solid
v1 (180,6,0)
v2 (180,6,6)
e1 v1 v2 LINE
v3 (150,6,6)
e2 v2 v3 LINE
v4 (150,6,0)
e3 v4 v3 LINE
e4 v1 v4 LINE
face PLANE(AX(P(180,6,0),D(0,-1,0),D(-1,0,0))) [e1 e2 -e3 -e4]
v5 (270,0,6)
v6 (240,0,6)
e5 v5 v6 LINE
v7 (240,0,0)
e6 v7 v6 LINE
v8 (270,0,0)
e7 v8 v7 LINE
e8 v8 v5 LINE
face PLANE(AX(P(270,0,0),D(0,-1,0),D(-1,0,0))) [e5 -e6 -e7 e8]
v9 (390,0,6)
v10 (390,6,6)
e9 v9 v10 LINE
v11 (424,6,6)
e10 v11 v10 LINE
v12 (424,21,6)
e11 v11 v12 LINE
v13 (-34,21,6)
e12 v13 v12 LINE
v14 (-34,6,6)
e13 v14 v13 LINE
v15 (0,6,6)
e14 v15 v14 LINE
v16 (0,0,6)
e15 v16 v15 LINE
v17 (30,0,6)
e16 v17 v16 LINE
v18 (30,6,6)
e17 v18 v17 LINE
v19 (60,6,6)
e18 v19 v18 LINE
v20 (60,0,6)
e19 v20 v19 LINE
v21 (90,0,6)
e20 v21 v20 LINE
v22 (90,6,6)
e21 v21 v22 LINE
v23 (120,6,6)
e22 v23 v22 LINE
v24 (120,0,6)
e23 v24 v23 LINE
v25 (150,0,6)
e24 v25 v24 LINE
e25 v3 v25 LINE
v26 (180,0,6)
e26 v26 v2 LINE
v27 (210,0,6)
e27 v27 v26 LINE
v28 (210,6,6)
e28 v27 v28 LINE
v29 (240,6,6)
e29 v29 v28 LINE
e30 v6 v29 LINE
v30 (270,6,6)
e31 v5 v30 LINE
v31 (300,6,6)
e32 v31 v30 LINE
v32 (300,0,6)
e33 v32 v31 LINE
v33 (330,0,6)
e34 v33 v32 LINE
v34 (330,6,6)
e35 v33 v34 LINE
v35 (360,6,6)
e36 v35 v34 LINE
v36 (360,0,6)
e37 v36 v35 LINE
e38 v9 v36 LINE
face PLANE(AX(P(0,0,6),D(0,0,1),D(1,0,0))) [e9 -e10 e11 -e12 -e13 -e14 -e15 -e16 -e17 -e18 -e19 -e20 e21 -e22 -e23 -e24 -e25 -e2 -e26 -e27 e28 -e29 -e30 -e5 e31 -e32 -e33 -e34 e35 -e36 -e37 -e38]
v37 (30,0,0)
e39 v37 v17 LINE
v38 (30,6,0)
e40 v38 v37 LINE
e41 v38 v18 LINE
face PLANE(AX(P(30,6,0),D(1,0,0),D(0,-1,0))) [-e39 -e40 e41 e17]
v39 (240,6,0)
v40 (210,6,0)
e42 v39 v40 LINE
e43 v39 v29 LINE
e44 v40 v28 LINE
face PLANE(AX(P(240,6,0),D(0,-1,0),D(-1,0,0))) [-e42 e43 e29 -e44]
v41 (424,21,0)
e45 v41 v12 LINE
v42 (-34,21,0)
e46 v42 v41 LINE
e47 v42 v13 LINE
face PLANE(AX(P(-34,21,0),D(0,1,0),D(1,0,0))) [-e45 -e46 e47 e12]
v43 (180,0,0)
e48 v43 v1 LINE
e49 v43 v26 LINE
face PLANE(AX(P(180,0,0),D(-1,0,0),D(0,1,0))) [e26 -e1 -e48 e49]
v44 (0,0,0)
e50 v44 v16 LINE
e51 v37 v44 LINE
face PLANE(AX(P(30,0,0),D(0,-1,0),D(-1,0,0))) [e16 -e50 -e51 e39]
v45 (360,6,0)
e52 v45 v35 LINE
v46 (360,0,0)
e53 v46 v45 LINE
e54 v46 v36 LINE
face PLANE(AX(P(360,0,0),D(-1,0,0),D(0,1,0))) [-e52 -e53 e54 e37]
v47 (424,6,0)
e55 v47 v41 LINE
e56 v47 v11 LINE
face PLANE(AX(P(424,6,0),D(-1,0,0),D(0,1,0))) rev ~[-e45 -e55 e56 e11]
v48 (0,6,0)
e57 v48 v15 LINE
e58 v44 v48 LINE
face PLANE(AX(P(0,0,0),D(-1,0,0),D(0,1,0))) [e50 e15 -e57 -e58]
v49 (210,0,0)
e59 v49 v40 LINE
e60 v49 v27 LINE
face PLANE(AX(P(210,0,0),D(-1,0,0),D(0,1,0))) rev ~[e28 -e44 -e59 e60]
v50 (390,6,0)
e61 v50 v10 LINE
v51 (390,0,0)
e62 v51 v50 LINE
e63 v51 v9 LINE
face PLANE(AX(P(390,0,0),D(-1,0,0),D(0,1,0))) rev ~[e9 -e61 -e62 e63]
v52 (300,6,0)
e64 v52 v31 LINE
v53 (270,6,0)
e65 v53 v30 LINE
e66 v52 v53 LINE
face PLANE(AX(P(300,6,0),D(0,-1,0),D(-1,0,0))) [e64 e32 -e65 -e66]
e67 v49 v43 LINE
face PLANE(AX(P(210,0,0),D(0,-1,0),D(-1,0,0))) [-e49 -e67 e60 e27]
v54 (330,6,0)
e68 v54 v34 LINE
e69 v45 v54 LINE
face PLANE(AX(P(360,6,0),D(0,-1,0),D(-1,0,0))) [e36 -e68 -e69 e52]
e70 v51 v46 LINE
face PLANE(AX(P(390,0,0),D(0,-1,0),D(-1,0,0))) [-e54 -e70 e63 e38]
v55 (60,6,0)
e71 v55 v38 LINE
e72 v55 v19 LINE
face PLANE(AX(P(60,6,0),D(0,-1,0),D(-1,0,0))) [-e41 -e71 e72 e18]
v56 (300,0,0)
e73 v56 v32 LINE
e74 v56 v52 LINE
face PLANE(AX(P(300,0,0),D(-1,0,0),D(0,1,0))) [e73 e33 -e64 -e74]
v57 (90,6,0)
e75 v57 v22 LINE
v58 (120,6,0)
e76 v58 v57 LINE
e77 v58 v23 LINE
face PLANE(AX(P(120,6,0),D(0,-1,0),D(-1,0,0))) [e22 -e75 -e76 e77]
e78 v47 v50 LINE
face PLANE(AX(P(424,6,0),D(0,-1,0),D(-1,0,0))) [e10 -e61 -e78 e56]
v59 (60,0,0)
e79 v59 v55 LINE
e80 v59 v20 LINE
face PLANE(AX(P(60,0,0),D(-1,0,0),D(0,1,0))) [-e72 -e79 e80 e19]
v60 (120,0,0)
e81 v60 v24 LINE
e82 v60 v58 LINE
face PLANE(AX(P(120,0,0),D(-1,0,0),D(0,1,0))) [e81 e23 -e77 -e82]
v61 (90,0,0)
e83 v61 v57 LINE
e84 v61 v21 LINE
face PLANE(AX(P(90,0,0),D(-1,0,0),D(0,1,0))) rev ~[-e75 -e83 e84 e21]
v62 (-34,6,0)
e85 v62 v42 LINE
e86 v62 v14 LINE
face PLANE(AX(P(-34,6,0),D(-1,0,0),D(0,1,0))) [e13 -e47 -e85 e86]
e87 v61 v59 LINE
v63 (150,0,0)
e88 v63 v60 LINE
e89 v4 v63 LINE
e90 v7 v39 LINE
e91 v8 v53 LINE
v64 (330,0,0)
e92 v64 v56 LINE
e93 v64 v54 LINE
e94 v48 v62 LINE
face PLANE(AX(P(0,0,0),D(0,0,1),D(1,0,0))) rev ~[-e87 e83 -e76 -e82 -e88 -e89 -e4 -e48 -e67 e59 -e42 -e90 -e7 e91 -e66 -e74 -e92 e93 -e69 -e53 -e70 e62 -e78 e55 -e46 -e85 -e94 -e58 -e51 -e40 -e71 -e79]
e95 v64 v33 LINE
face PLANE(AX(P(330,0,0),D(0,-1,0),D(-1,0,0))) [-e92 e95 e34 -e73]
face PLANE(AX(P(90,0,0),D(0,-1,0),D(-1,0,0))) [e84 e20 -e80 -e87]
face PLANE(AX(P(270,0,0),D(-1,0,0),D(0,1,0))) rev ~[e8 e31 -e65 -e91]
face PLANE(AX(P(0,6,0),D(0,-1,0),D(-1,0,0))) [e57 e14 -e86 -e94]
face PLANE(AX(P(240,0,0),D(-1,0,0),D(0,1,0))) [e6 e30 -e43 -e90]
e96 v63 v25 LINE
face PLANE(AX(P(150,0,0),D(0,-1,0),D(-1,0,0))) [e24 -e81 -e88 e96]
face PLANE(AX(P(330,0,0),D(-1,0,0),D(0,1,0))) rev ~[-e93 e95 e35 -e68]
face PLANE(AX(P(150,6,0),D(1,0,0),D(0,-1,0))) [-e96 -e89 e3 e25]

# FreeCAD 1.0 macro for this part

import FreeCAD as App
import Part
import Sketcher
from FreeCAD import Vector
Q = App.Units.Quantity


def add_polygon(sketch, points):
    """Adds a closed chain of lines whose ends are joined by coincident constraints."""
    first, n = sketch.GeometryCount, len(points)
    for a, b in zip(points, points[1:] + points[:1]):
        sketch.addGeometry(Part.LineSegment(App.Vector(*a, 0), App.Vector(*b, 0)), False)
    for i in range(n):
        sketch.addConstraint(Sketcher.Constraint("Coincident", first + i, 2, first + (i + 1) % n, 1))

doc = App.newDocument("Part")
body = doc.addObject("PartDesign::Body", "Body")

# Sketch on XY plane
sketch1 = body.newObject("Sketcher::SketchObject", "Sketch")
sketch1.AttachmentSupport = (doc.getObject("XY_Plane"), [""])
sketch1.MapMode = "FlatFace"
add_polygon(sketch1, [(-34, 21), (-34, 6), (0, 6), (0, 0), (30, 0), (30, 6), (60, 6), (60, 0), (90, 0), (90, 6), (120, 6), (120, 0), (150, 0), (150, 6), (180, 6), (180, 0), (210, 0), (210, 6), (240, 6), (240, 0), (270, 0), (270, 6), (300, 6), (300, 0), (330, 0), (330, 6), (360, 6), (360, 0), (390, 0), (390, 6), (424, 6), (424, 21)])  # lines 0-31
sketch1.addConstraint(Sketcher.Constraint("Vertical", 0))
sketch1.addConstraint(Sketcher.Constraint("Horizontal", 1))
sketch1.addConstraint(Sketcher.Constraint("Vertical", 2))
sketch1.addConstraint(Sketcher.Constraint("Horizontal", 3))
sketch1.addConstraint(Sketcher.Constraint("Vertical", 4))
sketch1.addConstraint(Sketcher.Constraint("Horizontal", 5))
sketch1.addConstraint(Sketcher.Constraint("Vertical", 6))
sketch1.addConstraint(Sketcher.Constraint("Horizontal", 7))
sketch1.addConstraint(Sketcher.Constraint("Vertical", 8))
sketch1.addConstraint(Sketcher.Constraint("Horizontal", 9))
sketch1.addConstraint(Sketcher.Constraint("Vertical", 10))
sketch1.addConstraint(Sketcher.Constraint("Horizontal", 11))
sketch1.addConstraint(Sketcher.Constraint("Vertical", 12))
sketch1.addConstraint(Sketcher.Constraint("Horizontal", 13))
sketch1.addConstraint(Sketcher.Constraint("Vertical", 14))
sketch1.addConstraint(Sketcher.Constraint("Horizontal", 15))
sketch1.addConstraint(Sketcher.Constraint("Vertical", 16))
sketch1.addConstraint(Sketcher.Constraint("Horizontal", 17))
sketch1.addConstraint(Sketcher.Constraint("Vertical", 18))
sketch1.addConstraint(Sketcher.Constraint("Horizontal", 19))
sketch1.addConstraint(Sketcher.Constraint("Vertical", 20))
sketch1.addConstraint(Sketcher.Constraint("Horizontal", 21))
sketch1.addConstraint(Sketcher.Constraint("Vertical", 22))
sketch1.addConstraint(Sketcher.Constraint("Horizontal", 23))
sketch1.addConstraint(Sketcher.Constraint("Vertical", 24))
sketch1.addConstraint(Sketcher.Constraint("Horizontal", 25))
sketch1.addConstraint(Sketcher.Constraint("Vertical", 26))
sketch1.addConstraint(Sketcher.Constraint("Horizontal", 27))
sketch1.addConstraint(Sketcher.Constraint("Vertical", 28))
sketch1.addConstraint(Sketcher.Constraint("Horizontal", 29))
sketch1.addConstraint(Sketcher.Constraint("Vertical", 30))
sketch1.addConstraint(Sketcher.Constraint("Horizontal", 31))
sketch1.addConstraint(Sketcher.Constraint("Coincident", 2, 2, -1, 1))
sketch1.addConstraint(Sketcher.Constraint("PointOnObject", 6, 2, -1))
sketch1.addConstraint(Sketcher.Constraint("PointOnObject", 10, 2, -1))
sketch1.addConstraint(Sketcher.Constraint("PointOnObject", 14, 2, -1))
sketch1.addConstraint(Sketcher.Constraint("PointOnObject", 18, 2, -1))
sketch1.addConstraint(Sketcher.Constraint("PointOnObject", 22, 2, -1))
sketch1.addConstraint(Sketcher.Constraint("PointOnObject", 26, 2, -1))
sketch1.addConstraint(Sketcher.Constraint("Horizontal", 1, 2, 4, 2))
sketch1.addConstraint(Sketcher.Constraint("Horizontal", 5, 2, 8, 2))
sketch1.addConstraint(Sketcher.Constraint("Horizontal", 9, 2, 12, 2))
sketch1.addConstraint(Sketcher.Constraint("Horizontal", 13, 2, 16, 2))
sketch1.addConstraint(Sketcher.Constraint("Horizontal", 17, 2, 20, 2))
sketch1.addConstraint(Sketcher.Constraint("Horizontal", 21, 2, 24, 2))
sketch1.addConstraint(Sketcher.Constraint("Horizontal", 25, 2, 28, 2))
sketch1.addConstraint(Sketcher.Constraint("Equal", 3, 5))
sketch1.addConstraint(Sketcher.Constraint("Equal", 5, 7))
sketch1.addConstraint(Sketcher.Constraint("Equal", 7, 9))
sketch1.addConstraint(Sketcher.Constraint("Equal", 9, 11))
sketch1.addConstraint(Sketcher.Constraint("Equal", 11, 13))
sketch1.addConstraint(Sketcher.Constraint("Equal", 13, 15))
sketch1.addConstraint(Sketcher.Constraint("Equal", 15, 17))
sketch1.addConstraint(Sketcher.Constraint("Equal", 17, 19))
sketch1.addConstraint(Sketcher.Constraint("Equal", 19, 21))
sketch1.addConstraint(Sketcher.Constraint("Equal", 21, 23))
sketch1.addConstraint(Sketcher.Constraint("Equal", 23, 25))
sketch1.addConstraint(Sketcher.Constraint("Equal", 25, 27))
sketch1.addConstraint(Sketcher.Constraint("Equal", 1, 29))
sketch1.addConstraint(Sketcher.Constraint("DistanceY", 0, 2, 0, 1, Q("15 mm")))
sketch1.addConstraint(Sketcher.Constraint("DistanceX", 1, 1, 1, 2, Q("34 mm")))
sketch1.addConstraint(Sketcher.Constraint("DistanceX", 3, 1, 3, 2, Q("30 mm")))
sketch1.addConstraint(Sketcher.Constraint("DistanceY", 2, 2, 2, 1, Q("6 mm")))
pad1 = body.newObject("PartDesign::Pad", "Pad")
pad1.Profile = sketch1
pad1.Length = 6

doc.recompute()
